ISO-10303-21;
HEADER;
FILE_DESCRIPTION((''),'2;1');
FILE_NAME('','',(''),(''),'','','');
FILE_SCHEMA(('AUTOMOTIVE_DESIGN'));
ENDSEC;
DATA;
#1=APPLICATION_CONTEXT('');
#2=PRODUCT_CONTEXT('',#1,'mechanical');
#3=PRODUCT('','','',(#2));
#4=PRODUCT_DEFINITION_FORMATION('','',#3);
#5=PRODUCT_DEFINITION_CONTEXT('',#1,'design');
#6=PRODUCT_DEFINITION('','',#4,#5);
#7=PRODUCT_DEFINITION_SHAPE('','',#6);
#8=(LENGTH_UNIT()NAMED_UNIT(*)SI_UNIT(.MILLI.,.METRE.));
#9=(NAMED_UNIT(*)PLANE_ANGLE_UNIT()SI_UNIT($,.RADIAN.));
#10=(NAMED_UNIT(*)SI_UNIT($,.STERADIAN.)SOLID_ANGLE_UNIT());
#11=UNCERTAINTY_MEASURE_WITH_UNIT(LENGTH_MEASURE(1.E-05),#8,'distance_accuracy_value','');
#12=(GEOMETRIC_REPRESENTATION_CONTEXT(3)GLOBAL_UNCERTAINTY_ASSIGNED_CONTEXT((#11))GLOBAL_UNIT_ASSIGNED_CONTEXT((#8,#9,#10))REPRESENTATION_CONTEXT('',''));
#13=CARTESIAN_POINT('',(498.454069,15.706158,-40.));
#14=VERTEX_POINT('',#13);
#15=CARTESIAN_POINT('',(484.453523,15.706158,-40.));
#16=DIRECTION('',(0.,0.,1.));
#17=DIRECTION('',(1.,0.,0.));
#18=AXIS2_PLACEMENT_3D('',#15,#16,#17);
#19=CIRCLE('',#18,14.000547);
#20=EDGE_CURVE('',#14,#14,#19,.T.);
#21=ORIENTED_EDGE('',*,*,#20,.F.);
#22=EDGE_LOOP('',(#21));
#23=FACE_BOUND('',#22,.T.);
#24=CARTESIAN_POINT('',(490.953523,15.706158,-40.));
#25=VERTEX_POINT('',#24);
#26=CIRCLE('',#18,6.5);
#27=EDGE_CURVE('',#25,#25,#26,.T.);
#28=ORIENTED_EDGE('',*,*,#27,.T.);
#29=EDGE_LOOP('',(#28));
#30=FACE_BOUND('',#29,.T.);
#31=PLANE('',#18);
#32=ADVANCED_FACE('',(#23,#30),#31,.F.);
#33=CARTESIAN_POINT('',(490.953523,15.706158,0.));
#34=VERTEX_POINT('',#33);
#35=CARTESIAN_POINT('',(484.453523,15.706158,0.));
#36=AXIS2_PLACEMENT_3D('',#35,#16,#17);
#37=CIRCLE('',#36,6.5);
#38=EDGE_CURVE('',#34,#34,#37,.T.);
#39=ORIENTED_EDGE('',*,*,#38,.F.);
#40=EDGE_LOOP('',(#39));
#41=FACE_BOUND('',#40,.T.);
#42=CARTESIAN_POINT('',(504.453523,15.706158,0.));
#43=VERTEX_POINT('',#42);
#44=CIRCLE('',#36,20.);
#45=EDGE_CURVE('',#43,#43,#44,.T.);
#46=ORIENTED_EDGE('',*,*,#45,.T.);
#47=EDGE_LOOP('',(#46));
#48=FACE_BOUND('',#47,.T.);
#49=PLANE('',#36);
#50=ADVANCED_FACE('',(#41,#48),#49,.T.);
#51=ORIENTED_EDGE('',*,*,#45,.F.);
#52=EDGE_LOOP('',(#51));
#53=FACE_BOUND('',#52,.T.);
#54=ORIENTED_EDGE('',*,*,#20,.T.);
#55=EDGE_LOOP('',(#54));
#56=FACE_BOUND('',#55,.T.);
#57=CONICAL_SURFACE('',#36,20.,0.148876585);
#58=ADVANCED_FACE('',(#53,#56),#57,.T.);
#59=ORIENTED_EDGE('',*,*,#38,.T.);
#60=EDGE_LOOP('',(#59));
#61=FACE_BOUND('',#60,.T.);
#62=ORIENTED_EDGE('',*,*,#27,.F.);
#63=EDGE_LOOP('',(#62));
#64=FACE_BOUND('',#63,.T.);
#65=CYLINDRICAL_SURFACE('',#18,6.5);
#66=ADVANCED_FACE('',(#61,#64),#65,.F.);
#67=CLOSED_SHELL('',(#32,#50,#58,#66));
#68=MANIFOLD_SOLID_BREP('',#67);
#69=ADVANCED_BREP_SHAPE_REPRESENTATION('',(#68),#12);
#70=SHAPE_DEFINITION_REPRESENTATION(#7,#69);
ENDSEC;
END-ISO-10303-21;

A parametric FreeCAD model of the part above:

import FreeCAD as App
import Part
import Sketcher
Q = App.Units.Quantity


def faces_at(feature, points):
    """Names of the faces that lie closest to the given points."""
    faces = feature.Shape.Faces
    near = lambda p: min(range(len(faces)), key=lambda i: faces[i].distToShape(Part.Vertex(*p))[0])
    return sorted({f"Face{near(p) + 1}" for p in points})

doc = App.newDocument("Part")
params = doc.addObject("Spreadsheet::Sheet", "Params")
for row, (alias, value) in enumerate([
    ("sketch1_diameter", "40 mm"),
    ("pad1_length", "40 mm"),
    ("draft_angle", "8.53 deg"),
    ("sketch2_diameter", "13 mm"),
], start=1):
    params.set(f"A{row}", alias)
    params.set(f"B{row}", "=" + value)
    params.setAlias(f"B{row}", alias)

body = doc.addObject("PartDesign::Body", "Body")

# Sketch on XY plane
sketch1 = body.newObject("Sketcher::SketchObject", "Sketch")
sketch1.AttachmentSupport = (doc.getObject("XY_Plane"), [""])
sketch1.MapMode = "FlatFace"
sketch1.addGeometry(Part.Circle(App.Vector(484, 16, 0), App.Vector(0, 0, 1), 20), False)
sketch1.addConstraint(Sketcher.Constraint("Diameter", 0, Q("40 mm")))
sketch1.addConstraint(Sketcher.Constraint("DistanceX", -1, 1, 0, 3, Q("484.453523 mm")))
sketch1.addConstraint(Sketcher.Constraint("DistanceY", -1, 1, 0, 3, Q("15.706158 mm")))
sketch1.setExpression("Constraints[0]", "Params.sketch1_diameter")
pad1 = body.newObject("PartDesign::Pad", "Pad")
pad1.Profile = sketch1
pad1.setExpression("Length", "Params.pad1_length")
pad1.Reversed = True
doc.recompute()

draft = body.newObject("PartDesign::Draft", "Draft")
draft.Base = (pad1, faces_at(pad1, [(464.454, 15.706, -20)]))
draft.NeutralPlane = (doc.getObject("XY_Plane"), [""])
draft.setExpression("Angle", "Params.draft_angle")
draft.Reversed = True

# Sketch on XY plane
sketch2 = body.newObject("Sketcher::SketchObject", "Sketch001")
sketch2.AttachmentSupport = (doc.getObject("XY_Plane"), [""])
sketch2.MapMode = "FlatFace"
sketch2.addGeometry(Part.Circle(App.Vector(484, 16, 0), App.Vector(0, 0, 1), 6), False)
sketch2.addConstraint(Sketcher.Constraint("Diameter", 0, Q("13 mm")))
sketch2.addConstraint(Sketcher.Constraint("DistanceX", -1, 1, 0, 3, Q("484.453523 mm")))
sketch2.addConstraint(Sketcher.Constraint("DistanceY", -1, 1, 0, 3, Q("15.706158 mm")))
sketch2.setExpression("Constraints[0]", "Params.sketch2_diameter")
pocket1 = body.newObject("PartDesign::Pocket", "Pocket")
pocket1.Profile = sketch2
pocket1.Type = "ThroughAll"

doc.recompute()
